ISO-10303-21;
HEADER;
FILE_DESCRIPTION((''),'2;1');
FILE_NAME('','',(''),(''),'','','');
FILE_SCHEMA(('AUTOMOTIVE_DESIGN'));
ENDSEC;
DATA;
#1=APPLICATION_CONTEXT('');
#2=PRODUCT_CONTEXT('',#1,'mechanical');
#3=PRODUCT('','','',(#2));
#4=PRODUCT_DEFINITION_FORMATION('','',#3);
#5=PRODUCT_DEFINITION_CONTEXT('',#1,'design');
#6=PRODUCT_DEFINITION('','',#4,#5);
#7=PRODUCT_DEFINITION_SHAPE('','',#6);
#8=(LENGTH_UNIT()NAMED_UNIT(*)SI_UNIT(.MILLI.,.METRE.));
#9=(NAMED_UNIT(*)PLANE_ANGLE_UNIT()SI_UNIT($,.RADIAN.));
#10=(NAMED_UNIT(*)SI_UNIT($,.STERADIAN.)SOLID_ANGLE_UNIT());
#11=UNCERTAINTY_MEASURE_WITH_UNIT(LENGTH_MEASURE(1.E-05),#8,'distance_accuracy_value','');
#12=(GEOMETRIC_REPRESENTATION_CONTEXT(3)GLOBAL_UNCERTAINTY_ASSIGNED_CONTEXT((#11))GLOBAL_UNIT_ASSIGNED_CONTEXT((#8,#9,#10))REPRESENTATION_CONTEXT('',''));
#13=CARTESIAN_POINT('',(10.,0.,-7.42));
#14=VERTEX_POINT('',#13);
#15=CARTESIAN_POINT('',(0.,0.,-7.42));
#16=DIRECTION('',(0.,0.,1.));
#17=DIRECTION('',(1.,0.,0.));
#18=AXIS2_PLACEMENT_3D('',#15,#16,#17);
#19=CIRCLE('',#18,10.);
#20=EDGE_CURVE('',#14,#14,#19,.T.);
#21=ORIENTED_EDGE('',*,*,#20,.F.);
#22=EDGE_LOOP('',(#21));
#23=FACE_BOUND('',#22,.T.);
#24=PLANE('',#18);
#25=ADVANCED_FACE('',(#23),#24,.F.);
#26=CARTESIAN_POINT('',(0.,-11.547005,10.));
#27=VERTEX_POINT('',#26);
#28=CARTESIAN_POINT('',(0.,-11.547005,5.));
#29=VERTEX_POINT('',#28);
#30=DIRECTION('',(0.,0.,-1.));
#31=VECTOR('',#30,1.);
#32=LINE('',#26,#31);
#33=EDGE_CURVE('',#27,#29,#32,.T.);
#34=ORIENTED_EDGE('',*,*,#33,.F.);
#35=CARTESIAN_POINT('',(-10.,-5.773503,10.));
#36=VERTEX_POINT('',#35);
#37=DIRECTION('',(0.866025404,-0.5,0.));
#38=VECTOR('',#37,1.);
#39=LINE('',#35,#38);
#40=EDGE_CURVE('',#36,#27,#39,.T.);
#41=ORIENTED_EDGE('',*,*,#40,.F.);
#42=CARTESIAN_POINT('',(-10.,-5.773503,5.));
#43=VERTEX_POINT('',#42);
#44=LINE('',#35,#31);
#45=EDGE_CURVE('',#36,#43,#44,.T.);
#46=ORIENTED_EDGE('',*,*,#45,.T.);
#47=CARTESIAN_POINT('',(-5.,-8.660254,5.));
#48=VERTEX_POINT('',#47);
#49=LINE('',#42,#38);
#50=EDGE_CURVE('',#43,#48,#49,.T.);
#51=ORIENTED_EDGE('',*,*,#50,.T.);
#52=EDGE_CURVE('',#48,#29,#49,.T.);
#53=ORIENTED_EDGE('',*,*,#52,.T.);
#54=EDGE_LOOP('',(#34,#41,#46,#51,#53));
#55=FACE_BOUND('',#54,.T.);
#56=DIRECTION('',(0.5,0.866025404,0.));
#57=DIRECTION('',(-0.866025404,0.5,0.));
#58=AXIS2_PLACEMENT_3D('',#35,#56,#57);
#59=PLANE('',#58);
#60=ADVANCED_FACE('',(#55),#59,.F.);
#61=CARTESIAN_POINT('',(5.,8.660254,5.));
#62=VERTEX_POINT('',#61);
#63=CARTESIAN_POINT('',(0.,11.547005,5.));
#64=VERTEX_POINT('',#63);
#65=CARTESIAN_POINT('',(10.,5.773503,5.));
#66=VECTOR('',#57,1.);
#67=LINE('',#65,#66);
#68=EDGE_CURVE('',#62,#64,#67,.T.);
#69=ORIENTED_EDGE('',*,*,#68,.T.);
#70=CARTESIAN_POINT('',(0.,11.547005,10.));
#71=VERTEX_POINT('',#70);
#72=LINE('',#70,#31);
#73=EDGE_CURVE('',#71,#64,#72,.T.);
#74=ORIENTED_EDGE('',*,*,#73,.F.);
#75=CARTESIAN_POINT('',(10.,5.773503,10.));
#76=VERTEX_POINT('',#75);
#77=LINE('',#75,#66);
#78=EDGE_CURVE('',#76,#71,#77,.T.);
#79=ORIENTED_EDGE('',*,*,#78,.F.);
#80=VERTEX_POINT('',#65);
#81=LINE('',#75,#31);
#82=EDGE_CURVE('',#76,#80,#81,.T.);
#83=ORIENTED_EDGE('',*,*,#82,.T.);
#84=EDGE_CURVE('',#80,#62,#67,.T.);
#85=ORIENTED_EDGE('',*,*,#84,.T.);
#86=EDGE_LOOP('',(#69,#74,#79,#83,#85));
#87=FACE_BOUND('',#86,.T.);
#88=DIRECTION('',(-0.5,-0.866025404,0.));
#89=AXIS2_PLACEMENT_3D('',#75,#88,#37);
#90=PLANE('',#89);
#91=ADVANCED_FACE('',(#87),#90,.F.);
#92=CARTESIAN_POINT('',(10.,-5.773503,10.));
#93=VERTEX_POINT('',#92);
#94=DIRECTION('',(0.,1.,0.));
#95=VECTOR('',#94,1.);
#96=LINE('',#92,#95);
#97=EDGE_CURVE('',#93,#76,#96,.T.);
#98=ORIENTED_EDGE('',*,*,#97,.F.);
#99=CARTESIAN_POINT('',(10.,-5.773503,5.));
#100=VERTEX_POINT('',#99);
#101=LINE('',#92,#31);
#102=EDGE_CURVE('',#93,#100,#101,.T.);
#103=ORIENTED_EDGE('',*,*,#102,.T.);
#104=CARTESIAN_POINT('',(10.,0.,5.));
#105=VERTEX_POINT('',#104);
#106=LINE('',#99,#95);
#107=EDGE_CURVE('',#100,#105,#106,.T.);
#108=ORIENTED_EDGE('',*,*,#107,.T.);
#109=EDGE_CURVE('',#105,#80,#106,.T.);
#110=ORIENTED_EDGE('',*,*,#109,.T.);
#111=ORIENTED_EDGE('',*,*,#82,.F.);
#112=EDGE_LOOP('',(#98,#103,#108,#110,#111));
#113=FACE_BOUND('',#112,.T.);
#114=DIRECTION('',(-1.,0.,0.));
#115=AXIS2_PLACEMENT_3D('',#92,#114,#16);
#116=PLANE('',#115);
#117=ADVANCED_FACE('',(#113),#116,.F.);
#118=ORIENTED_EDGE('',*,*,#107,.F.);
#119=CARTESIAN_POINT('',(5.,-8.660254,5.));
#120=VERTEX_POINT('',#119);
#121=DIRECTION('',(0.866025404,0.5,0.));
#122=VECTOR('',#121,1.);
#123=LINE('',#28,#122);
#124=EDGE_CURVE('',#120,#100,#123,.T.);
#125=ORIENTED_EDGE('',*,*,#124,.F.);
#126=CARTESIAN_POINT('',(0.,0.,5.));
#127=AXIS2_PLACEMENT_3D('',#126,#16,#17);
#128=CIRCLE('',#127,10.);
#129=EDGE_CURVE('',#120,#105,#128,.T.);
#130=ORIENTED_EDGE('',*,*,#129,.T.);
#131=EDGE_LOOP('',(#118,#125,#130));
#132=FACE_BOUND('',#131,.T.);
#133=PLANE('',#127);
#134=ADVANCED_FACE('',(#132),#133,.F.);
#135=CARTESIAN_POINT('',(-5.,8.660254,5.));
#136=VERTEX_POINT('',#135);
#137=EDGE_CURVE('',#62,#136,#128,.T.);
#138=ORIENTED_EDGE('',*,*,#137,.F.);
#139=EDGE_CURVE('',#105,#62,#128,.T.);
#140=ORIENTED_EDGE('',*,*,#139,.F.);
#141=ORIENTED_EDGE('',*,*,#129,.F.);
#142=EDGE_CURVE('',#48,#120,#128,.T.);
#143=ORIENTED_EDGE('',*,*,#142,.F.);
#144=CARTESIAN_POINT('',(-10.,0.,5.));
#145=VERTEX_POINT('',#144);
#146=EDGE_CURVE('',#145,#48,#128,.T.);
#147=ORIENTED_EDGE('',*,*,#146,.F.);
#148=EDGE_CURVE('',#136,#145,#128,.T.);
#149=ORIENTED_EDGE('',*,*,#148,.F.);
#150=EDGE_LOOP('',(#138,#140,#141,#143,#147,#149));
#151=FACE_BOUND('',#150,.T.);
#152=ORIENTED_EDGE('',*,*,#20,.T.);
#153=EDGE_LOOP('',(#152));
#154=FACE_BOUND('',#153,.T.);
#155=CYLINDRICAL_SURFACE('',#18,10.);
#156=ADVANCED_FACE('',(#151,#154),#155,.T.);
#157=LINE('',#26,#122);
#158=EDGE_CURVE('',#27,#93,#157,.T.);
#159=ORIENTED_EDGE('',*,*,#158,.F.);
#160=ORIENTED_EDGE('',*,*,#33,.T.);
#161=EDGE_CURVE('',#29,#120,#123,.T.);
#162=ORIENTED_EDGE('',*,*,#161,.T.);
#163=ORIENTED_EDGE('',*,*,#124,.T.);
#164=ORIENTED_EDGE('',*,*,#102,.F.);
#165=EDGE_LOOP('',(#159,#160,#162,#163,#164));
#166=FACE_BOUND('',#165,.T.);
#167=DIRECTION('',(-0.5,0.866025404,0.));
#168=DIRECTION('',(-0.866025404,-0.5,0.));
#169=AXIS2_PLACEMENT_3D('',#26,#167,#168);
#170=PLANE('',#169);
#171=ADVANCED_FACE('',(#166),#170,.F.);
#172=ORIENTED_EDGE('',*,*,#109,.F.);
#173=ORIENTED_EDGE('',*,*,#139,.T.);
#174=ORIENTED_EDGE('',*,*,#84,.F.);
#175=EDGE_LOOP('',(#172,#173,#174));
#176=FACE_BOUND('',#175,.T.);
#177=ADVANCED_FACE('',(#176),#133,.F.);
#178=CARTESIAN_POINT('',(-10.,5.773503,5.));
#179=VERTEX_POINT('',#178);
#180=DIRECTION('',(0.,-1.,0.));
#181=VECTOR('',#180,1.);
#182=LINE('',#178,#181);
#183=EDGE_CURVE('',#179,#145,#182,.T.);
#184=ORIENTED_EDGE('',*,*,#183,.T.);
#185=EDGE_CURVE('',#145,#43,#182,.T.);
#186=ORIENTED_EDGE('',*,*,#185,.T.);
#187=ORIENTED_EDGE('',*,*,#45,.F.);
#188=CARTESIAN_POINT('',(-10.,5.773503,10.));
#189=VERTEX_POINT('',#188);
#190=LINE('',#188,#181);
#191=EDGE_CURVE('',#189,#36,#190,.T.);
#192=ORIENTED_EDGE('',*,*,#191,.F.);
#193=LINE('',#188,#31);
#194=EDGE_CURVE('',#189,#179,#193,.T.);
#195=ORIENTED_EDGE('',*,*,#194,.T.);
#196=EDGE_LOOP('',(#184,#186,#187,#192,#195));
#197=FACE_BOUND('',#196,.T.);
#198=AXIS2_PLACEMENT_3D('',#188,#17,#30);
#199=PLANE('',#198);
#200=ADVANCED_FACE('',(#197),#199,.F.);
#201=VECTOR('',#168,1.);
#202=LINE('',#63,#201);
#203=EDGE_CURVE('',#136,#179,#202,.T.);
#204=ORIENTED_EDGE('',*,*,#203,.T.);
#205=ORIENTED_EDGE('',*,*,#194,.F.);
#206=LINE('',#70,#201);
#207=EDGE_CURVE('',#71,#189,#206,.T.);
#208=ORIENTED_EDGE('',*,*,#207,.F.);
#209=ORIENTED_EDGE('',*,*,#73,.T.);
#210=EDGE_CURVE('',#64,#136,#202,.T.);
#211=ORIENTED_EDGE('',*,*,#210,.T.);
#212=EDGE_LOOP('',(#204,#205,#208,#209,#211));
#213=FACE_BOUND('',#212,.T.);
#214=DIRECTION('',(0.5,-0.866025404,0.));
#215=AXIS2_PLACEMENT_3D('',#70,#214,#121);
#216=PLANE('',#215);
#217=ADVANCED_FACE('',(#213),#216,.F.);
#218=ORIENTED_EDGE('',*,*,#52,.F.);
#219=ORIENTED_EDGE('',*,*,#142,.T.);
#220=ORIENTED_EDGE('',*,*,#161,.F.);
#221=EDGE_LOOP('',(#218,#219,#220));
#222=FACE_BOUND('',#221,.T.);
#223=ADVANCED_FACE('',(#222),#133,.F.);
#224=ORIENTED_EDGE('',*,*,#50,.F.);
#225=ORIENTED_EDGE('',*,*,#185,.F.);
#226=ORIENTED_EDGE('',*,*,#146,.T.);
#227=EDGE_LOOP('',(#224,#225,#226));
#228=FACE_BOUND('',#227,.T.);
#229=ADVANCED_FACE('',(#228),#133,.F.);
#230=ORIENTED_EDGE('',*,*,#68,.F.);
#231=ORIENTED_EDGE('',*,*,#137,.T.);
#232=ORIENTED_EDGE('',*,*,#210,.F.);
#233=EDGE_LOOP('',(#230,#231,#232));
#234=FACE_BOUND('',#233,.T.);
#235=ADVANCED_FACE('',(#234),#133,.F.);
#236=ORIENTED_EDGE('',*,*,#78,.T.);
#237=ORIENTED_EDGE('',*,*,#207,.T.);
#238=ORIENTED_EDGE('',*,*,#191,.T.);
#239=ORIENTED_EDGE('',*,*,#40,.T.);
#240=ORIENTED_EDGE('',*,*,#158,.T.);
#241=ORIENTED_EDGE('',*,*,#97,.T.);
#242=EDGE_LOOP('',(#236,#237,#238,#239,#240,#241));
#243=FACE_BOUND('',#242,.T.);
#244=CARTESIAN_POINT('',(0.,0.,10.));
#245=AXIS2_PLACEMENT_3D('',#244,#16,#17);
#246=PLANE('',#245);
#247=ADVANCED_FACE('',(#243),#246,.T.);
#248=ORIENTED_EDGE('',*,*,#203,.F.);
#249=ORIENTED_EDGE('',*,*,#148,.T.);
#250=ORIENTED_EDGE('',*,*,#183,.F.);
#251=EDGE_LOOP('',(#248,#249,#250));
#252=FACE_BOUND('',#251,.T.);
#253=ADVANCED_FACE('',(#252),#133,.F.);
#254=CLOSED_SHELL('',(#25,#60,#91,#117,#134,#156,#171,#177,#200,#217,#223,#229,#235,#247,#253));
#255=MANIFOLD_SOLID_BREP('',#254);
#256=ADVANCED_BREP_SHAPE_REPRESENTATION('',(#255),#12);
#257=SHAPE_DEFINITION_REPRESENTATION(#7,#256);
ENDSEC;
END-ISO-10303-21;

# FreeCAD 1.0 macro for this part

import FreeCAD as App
import Part
import Sketcher
from FreeCAD import Vector
Q = App.Units.Quantity

doc = App.newDocument("Part")
body = doc.addObject("PartDesign::Body", "Body")

sketch1 = doc.addObject("Sketcher::SketchObject", "Sketch")
body.addObject(sketch1)
sketch1.AttachmentSupport = (doc.XY_Plane, [""])
sketch1.MapMode = "FlatFace"
sketch1.addGeometry(Part.Circle(Vector(0, 0, 0), Vector(0, 0, 1), 10), False)
sketch1.addConstraint(Sketcher.Constraint("Coincident", 0, 3, -1, 1))
sketch1.addConstraint(Sketcher.Constraint("Diameter", 0, Q("20 mm")))
pad1 = doc.addObject("PartDesign::Pad", "Pad")
body.addObject(pad1)
pad1.Profile = sketch1
pad1.Type = "TwoLengths"
pad1.Length = 5
pad1.Length2 = 7.42

sketch2 = doc.addObject("Sketcher::SketchObject", "Sketch001")
body.addObject(sketch2)
sketch2.AttachmentSupport = (doc.XY_Plane, [""])
sketch2.MapMode = "FlatFace"
sketch2.AttachmentOffset = App.Placement(Vector(0, 0, 5), App.Rotation())
sketch2.addGeometry(Part.LineSegment(Vector(0, 11.547005, 0), Vector(-10, 5.773503, 0)), False)
sketch2.addGeometry(Part.LineSegment(Vector(-10, 5.773503, 0), Vector(-10, -5.773503, 0)), False)
sketch2.addGeometry(Part.LineSegment(Vector(-10, -5.773503, 0), Vector(0, -11.547005, 0)), False)
sketch2.addGeometry(Part.LineSegment(Vector(0, -11.547005, 0), Vector(10, -5.773503, 0)), False)
sketch2.addGeometry(Part.LineSegment(Vector(10, -5.773503, 0), Vector(10, 5.773503, 0)), False)
sketch2.addGeometry(Part.LineSegment(Vector(10, 5.773503, 0), Vector(0, 11.547005, 0)), False)
sketch2.addConstraint(Sketcher.Constraint("Coincident", 0, 2, 1, 1))
sketch2.addConstraint(Sketcher.Constraint("Coincident", 1, 2, 2, 1))
sketch2.addConstraint(Sketcher.Constraint("Coincident", 2, 2, 3, 1))
sketch2.addConstraint(Sketcher.Constraint("Coincident", 3, 2, 4, 1))
sketch2.addConstraint(Sketcher.Constraint("Coincident", 4, 2, 5, 1))
sketch2.addConstraint(Sketcher.Constraint("Coincident", 5, 2, 0, 1))
sketch2.addConstraint(Sketcher.Constraint("Vertical", 1))
sketch2.addConstraint(Sketcher.Constraint("Vertical", 4))
sketch2.addConstraint(Sketcher.Constraint("Symmetric", 0, 2, 3, 2, -1, 1))
sketch2.addConstraint(Sketcher.Constraint("Symmetric", 2, 2, 5, 2, -1, 1))
sketch2.addConstraint(Sketcher.Constraint("PointOnObject", 2, 2, -2))
sketch2.addConstraint(Sketcher.Constraint("Parallel", 2, 5))
sketch2.addConstraint(Sketcher.Constraint("Horizontal", 1, 2, 3, 2))
sketch2.addConstraint(Sketcher.Constraint("Angle", 0, Q("-150 deg")))
sketch2.addConstraint(Sketcher.Constraint("DistanceX", 0, 2, -1, 1, Q("10 mm")))
sketch2.addConstraint(Sketcher.Constraint("DistanceY", 1, 2, 1, 1, Q("11.547005 mm")))
pad2 = doc.addObject("PartDesign::Pad", "Pad001")
body.addObject(pad2)
pad2.Profile = sketch2
pad2.Length = 5

doc.recompute()
